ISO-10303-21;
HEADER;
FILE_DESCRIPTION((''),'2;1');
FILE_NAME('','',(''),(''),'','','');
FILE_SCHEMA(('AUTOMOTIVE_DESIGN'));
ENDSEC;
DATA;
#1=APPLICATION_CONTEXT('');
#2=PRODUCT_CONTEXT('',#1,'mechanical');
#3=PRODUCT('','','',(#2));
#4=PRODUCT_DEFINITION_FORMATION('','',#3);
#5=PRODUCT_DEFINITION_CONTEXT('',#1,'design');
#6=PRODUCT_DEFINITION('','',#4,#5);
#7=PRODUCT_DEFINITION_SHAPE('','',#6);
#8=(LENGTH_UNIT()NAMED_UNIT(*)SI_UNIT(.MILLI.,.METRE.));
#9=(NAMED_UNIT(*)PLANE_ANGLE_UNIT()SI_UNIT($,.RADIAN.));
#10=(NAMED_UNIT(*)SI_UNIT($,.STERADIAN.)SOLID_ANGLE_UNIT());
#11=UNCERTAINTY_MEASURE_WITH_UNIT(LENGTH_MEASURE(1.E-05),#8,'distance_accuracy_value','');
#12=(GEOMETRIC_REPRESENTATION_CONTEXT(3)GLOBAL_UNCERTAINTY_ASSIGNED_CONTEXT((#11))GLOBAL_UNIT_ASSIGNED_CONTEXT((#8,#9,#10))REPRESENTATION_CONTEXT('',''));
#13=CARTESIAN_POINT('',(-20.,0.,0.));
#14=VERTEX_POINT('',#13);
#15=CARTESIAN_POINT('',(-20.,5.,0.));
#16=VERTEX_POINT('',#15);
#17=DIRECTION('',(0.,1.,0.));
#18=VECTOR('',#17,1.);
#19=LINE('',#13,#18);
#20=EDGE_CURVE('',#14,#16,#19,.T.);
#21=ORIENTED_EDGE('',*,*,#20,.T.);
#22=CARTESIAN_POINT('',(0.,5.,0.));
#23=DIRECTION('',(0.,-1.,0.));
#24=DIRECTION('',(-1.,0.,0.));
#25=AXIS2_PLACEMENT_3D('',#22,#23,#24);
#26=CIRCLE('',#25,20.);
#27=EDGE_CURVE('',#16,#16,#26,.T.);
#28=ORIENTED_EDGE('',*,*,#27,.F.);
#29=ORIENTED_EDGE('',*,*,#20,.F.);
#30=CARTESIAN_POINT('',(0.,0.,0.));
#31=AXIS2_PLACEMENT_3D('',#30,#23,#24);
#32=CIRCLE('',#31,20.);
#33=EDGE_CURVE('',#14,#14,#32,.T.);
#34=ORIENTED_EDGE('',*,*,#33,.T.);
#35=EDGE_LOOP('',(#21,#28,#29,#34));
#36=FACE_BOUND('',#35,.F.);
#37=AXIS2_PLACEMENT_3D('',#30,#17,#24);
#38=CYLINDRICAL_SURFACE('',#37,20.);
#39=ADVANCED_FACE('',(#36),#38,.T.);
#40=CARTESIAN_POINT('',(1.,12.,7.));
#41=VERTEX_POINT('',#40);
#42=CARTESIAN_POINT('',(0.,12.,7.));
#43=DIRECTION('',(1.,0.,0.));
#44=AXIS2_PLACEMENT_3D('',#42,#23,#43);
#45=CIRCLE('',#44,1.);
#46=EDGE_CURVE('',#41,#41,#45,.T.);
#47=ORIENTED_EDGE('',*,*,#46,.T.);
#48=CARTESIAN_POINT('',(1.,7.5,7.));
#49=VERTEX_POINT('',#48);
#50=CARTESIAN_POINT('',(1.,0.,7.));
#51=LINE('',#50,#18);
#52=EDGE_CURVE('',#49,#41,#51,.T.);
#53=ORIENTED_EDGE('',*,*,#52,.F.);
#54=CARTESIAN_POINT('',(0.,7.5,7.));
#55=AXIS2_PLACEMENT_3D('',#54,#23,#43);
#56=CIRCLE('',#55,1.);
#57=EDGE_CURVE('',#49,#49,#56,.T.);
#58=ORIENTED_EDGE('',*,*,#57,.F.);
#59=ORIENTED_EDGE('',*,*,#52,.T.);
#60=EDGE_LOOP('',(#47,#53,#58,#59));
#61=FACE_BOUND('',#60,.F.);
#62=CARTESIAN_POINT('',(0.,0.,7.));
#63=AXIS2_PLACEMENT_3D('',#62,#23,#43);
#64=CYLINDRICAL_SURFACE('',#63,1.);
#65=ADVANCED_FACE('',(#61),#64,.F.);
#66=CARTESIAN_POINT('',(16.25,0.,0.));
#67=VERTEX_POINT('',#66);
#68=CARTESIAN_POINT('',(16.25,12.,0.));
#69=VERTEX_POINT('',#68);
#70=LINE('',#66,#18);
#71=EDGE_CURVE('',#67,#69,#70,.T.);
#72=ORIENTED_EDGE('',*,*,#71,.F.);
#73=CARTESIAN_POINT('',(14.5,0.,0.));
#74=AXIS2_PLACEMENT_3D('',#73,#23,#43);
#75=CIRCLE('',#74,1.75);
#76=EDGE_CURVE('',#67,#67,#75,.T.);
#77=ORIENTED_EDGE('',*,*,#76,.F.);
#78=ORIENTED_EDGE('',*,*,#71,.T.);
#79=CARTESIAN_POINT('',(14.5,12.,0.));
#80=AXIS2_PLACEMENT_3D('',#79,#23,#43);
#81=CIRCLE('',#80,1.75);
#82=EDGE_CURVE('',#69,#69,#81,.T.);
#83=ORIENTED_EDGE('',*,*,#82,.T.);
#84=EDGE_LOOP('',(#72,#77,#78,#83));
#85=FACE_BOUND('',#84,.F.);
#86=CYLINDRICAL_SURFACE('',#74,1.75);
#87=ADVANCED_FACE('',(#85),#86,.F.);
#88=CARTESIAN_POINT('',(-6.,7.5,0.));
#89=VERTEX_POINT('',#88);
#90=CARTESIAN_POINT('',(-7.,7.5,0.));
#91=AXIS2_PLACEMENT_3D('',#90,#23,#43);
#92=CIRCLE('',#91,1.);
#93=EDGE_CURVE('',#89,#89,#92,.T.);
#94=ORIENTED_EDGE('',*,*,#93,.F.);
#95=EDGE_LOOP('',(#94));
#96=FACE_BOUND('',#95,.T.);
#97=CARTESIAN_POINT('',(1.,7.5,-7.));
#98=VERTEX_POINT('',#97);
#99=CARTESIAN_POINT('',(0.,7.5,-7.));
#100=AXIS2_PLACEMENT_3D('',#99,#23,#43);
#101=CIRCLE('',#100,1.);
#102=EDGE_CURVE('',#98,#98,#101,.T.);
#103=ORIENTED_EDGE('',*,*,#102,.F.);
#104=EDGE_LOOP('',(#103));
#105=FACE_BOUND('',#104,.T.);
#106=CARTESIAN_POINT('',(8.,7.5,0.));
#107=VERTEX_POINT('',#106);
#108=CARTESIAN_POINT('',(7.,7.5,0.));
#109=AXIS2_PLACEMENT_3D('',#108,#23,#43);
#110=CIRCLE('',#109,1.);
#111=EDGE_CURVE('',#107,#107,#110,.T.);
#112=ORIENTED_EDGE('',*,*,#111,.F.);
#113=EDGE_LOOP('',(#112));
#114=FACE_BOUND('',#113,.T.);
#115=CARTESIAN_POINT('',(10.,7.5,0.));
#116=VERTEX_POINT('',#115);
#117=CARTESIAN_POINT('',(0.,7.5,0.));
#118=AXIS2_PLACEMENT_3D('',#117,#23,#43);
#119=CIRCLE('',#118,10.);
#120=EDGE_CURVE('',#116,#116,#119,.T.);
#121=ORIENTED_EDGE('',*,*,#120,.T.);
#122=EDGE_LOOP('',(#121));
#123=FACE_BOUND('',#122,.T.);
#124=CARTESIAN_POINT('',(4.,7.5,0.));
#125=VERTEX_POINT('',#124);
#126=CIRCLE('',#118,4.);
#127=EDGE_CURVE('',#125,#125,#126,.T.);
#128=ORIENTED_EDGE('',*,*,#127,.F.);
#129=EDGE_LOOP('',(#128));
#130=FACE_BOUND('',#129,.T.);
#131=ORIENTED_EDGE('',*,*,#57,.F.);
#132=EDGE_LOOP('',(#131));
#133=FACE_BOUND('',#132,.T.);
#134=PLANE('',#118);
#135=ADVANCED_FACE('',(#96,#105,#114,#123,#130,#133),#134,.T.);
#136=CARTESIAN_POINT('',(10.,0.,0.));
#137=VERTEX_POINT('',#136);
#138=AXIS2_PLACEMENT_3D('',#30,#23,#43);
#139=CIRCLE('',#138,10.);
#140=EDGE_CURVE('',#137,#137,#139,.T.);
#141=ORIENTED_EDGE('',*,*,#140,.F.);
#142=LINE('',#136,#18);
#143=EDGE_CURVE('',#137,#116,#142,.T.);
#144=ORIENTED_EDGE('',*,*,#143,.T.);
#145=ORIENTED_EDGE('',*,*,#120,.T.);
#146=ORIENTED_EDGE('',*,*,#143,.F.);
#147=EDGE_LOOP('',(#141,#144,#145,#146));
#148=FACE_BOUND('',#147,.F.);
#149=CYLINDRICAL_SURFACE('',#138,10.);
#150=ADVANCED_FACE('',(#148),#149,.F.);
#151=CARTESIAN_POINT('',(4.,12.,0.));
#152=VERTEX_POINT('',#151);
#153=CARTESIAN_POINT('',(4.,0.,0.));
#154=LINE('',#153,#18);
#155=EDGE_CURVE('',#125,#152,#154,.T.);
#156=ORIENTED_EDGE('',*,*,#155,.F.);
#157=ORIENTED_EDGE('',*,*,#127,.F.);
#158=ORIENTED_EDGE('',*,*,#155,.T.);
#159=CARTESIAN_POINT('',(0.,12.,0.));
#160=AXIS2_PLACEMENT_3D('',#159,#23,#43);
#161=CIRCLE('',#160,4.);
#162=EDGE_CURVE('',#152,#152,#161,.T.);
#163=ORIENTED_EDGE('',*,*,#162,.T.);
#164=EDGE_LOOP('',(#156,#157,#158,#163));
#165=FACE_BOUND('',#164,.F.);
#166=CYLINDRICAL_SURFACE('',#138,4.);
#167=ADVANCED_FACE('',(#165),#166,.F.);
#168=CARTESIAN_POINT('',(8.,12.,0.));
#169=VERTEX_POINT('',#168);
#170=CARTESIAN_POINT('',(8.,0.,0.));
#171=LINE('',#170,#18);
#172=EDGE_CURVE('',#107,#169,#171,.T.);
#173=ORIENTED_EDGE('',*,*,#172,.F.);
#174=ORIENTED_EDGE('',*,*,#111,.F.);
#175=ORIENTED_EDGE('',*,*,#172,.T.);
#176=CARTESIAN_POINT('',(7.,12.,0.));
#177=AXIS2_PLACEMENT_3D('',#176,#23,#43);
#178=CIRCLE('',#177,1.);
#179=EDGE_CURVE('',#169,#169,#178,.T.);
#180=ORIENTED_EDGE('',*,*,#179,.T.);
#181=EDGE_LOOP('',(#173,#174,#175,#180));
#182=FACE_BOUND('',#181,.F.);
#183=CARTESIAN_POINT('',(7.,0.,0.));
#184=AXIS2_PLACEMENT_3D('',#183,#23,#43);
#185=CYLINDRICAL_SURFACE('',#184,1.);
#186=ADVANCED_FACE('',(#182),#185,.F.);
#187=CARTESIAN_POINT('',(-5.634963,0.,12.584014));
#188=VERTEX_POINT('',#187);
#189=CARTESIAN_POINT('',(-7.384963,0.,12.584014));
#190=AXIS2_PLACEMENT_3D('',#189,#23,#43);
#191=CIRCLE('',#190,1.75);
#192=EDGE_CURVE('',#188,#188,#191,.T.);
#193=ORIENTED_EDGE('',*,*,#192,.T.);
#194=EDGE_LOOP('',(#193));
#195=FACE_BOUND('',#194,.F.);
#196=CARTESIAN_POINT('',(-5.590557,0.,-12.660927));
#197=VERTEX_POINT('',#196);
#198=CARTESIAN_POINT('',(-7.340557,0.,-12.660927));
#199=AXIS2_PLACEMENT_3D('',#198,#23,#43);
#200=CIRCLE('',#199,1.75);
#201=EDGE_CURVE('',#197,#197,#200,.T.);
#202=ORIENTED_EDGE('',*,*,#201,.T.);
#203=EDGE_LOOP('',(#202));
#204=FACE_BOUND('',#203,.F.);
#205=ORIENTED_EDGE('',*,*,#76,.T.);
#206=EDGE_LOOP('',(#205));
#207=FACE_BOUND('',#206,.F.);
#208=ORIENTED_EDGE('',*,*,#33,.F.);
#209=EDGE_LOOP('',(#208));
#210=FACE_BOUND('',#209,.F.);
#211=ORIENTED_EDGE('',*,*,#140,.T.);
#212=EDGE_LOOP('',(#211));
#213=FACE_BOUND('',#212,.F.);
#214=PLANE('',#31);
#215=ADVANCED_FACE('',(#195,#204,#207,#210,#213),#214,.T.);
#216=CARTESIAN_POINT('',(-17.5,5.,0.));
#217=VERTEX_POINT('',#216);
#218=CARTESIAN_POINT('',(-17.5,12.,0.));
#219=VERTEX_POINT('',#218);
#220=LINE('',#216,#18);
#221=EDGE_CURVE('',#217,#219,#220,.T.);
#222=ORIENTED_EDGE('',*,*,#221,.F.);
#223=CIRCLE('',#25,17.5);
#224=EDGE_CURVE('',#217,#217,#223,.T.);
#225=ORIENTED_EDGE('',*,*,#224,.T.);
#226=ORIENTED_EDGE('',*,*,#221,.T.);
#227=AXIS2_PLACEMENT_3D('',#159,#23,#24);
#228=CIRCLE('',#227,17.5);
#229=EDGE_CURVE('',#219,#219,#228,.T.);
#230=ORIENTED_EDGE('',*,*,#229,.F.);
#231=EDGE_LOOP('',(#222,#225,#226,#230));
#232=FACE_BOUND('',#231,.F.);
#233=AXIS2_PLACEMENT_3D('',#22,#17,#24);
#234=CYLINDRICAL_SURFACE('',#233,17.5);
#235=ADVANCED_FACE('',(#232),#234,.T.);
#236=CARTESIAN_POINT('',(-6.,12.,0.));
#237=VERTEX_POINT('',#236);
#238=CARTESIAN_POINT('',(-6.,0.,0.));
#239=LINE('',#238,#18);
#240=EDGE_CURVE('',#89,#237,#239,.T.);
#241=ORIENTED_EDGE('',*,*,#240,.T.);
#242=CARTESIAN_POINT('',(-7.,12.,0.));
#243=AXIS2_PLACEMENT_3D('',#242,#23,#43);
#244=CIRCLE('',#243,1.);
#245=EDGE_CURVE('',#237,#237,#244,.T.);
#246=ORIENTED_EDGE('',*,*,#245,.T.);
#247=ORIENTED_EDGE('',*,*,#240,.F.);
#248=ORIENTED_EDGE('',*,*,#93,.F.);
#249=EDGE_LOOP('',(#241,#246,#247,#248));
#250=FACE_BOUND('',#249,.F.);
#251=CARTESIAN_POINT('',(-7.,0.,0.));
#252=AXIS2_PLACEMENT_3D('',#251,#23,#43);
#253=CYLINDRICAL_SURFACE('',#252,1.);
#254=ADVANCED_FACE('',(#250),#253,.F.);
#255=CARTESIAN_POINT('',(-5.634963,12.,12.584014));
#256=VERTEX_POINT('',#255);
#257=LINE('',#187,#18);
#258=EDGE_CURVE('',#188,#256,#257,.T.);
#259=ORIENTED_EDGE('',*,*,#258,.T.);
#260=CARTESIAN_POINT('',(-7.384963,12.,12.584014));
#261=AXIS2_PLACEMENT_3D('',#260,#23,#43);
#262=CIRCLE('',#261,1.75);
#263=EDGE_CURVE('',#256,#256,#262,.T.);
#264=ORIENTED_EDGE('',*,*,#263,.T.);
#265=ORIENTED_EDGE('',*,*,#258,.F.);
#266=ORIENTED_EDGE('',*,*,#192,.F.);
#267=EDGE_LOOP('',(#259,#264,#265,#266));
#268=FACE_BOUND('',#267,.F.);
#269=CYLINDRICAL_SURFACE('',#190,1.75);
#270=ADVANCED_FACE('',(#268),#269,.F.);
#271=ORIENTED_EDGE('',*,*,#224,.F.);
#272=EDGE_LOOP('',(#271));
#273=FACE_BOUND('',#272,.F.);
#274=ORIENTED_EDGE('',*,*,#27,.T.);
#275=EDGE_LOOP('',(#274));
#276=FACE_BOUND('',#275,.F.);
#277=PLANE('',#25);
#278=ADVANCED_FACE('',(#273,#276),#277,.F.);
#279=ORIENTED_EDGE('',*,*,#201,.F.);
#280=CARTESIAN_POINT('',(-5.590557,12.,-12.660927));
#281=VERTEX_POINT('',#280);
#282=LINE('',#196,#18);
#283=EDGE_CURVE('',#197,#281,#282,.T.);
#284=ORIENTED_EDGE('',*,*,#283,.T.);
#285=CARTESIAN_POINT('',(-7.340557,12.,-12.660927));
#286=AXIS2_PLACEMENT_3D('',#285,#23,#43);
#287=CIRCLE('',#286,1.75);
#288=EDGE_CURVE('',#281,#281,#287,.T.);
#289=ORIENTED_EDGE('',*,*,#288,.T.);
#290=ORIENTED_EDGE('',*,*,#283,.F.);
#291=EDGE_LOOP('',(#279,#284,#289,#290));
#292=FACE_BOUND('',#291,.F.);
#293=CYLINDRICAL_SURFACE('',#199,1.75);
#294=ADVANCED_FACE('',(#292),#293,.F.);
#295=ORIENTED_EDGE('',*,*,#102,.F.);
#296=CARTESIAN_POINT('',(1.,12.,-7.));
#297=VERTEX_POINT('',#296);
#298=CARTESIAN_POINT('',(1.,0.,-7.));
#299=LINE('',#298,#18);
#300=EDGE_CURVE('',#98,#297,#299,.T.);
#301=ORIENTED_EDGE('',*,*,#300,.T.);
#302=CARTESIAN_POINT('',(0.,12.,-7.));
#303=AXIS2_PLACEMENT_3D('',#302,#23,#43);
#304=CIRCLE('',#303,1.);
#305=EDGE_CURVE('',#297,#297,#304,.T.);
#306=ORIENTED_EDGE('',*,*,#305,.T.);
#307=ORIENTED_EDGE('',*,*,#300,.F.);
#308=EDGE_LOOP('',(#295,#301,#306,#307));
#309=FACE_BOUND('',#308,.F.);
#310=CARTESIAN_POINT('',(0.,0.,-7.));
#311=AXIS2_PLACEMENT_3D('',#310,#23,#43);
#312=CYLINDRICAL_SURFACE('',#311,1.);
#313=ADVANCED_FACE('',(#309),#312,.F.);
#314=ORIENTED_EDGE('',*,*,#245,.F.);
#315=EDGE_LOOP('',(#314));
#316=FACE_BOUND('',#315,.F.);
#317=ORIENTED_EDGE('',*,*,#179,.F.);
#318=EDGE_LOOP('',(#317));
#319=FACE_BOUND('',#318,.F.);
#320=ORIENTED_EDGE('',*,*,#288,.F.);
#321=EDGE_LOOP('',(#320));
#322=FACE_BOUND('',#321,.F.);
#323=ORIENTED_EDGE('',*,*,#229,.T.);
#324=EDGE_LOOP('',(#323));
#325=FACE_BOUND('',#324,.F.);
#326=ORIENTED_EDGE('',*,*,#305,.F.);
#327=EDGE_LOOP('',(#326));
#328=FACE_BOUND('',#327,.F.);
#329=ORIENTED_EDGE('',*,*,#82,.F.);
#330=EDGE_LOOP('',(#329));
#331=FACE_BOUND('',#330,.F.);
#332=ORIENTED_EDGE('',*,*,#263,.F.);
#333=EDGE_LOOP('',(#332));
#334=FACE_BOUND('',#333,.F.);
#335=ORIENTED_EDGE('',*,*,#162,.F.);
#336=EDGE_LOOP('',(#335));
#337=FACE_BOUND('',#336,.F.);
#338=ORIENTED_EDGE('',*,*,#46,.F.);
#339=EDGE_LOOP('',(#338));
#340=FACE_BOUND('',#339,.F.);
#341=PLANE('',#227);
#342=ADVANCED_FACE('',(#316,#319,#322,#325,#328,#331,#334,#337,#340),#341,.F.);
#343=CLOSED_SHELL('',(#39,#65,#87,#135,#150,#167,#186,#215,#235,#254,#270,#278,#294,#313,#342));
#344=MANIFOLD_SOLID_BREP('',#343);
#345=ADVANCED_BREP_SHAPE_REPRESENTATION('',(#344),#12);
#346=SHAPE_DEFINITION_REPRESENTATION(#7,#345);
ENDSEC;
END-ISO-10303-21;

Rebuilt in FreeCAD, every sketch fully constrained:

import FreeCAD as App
import Part
import Sketcher

V = App.Vector

doc = App.newDocument("Part")
params = doc.addObject("Spreadsheet::Sheet", "Params")
for row, (alias, value) in enumerate([
    ("sketch1_width", "20 mm"),
    ("sketch1_height", "12 mm"),
    ("sketch1_height2", "7 mm"),
    ("sketch1_width2", "17.5 mm"),
    ("revolution_angle", "360 deg"),
    ("sketch2_diameter", "8 mm"),
    ("sketch2_diameter2", "2 mm"),
    ("sketch2_diameter3", "3.5 mm"),
    ("sketch3_diameter", "20 mm"),
    ("pocket2_length", "7.5 mm"),
], start=1):
    params.set(f"A{row}", alias)
    params.set(f"B{row}", "=" + value)
    params.setAlias(f"B{row}", alias)

body = doc.addObject("PartDesign::Body", "Body")

sketch1 = body.newObject("Sketcher::SketchObject", "Sketch")
sketch1.AttachmentSupport = (doc.getObject("XY_Plane"), [""])
sketch1.MapMode = "FlatFace"
sketch1.addGeometry(Part.LineSegment(V(0, 0, 0), V(0, 12, 0)), False)
sketch1.addGeometry(Part.LineSegment(V(0, 12, 0), V(-17.5, 12, 0)), False)
sketch1.addGeometry(Part.LineSegment(V(-17.5, 12, 0), V(-17.5, 5, 0)), False)
sketch1.addGeometry(Part.LineSegment(V(-17.5, 5, 0), V(-20, 5, 0)), False)
sketch1.addGeometry(Part.LineSegment(V(-20, 5, 0), V(-20, 0, 0)), False)
sketch1.addGeometry(Part.LineSegment(V(-20, 0, 0), V(0, 0, 0)), False)
sketch1.addConstraint(Sketcher.Constraint("Coincident", 0, 2, 1, 1))
sketch1.addConstraint(Sketcher.Constraint("Coincident", 1, 2, 2, 1))
sketch1.addConstraint(Sketcher.Constraint("Coincident", 2, 2, 3, 1))
sketch1.addConstraint(Sketcher.Constraint("Coincident", 3, 2, 4, 1))
sketch1.addConstraint(Sketcher.Constraint("Coincident", 4, 2, 5, 1))
sketch1.addConstraint(Sketcher.Constraint("Coincident", 5, 2, 0, 1))
sketch1.addConstraint(Sketcher.Constraint("Vertical", 0))
sketch1.addConstraint(Sketcher.Constraint("Horizontal", 1))
sketch1.addConstraint(Sketcher.Constraint("Vertical", 2))
sketch1.addConstraint(Sketcher.Constraint("Horizontal", 3))
sketch1.addConstraint(Sketcher.Constraint("Vertical", 4))
sketch1.addConstraint(Sketcher.Constraint("Horizontal", 5))
sketch1.addConstraint(Sketcher.Constraint("Coincident", 5, 2, -1, 1))
sketch1.addConstraint(Sketcher.Constraint("DistanceX", 5, 1, 5, 2, 20.0))
sketch1.addConstraint(Sketcher.Constraint("DistanceY", 0, 1, 0, 2, 12.0))
sketch1.addConstraint(Sketcher.Constraint("DistanceY", 2, 2, 2, 1, 7.0))
sketch1.addConstraint(Sketcher.Constraint("DistanceX", 1, 2, 1, 1, 17.5))
sketch1.setExpression("Constraints[13]", "Params.sketch1_width")
sketch1.setExpression("Constraints[14]", "Params.sketch1_height")
sketch1.setExpression("Constraints[15]", "Params.sketch1_height2")
sketch1.setExpression("Constraints[16]", "Params.sketch1_width2")
revolution = body.newObject("PartDesign::Revolution", "Revolution")
revolution.Profile = sketch1
revolution.ReferenceAxis = (sketch1, ["V_Axis"])
revolution.setExpression("Angle", "Params.revolution_angle")

sketch2 = body.newObject("Sketcher::SketchObject", "Sketch001")
sketch2.AttachmentSupport = (doc.getObject("XZ_Plane"), [""])
sketch2.MapMode = "FlatFace"
sketch2.addGeometry(Part.Circle(V(-7.3, -12.7, 0), V(0, 0, 1), 1.8), False)
sketch2.addGeometry(Part.Circle(V(14.5, 0, 0), V(0, 0, 1), 1.8), False)
sketch2.addGeometry(Part.Circle(V(-7.4, 12.6, 0), V(0, 0, 1), 1.8), False)
sketch2.addGeometry(Part.Circle(V(0, 0, 0), V(0, 0, 1), 4), False)
sketch2.addGeometry(Part.Circle(V(0, 7, 0), V(0, 0, 1), 1), False)
sketch2.addGeometry(Part.Circle(V(-7, 0, 0), V(0, 0, 1), 1), False)
sketch2.addGeometry(Part.Circle(V(7, 0, 0), V(0, 0, 1), 1), False)
sketch2.addGeometry(Part.Circle(V(0, -7, 0), V(0, 0, 1), 1), False)
sketch2.addConstraint(Sketcher.Constraint("Coincident", 3, 3, -1, 1))
sketch2.addConstraint(Sketcher.Constraint("Equal", 0, 1))
sketch2.addConstraint(Sketcher.Constraint("Equal", 1, 2))
sketch2.addConstraint(Sketcher.Constraint("Equal", 4, 5))
sketch2.addConstraint(Sketcher.Constraint("Equal", 5, 6))
sketch2.addConstraint(Sketcher.Constraint("Equal", 6, 7))
sketch2.addConstraint(Sketcher.Constraint("Symmetric", 5, 3, 6, 3, -1, 1))
sketch2.addConstraint(Sketcher.Constraint("Symmetric", 4, 3, 7, 3, -1, 1))
sketch2.addConstraint(Sketcher.Constraint("PointOnObject", 1, 3, -1))
sketch2.addConstraint(Sketcher.Constraint("PointOnObject", 4, 3, -2))
sketch2.addConstraint(Sketcher.Constraint("PointOnObject", 5, 3, -1))
sketch2.addConstraint(Sketcher.Constraint("Diameter", 3, 8.0))
sketch2.addConstraint(Sketcher.Constraint("Diameter", 4, 2.0))
sketch2.addConstraint(Sketcher.Constraint("Diameter", 0, 3.5))
sketch2.addConstraint(Sketcher.Constraint("DistanceY", -1, 1, 4, 3, 7.0))
sketch2.addConstraint(Sketcher.Constraint("DistanceX", 5, 3, -1, 1, 7.0))
sketch2.addConstraint(Sketcher.Constraint("DistanceX", -1, 1, 1, 3, 14.5))
sketch2.addConstraint(Sketcher.Constraint("DistanceY", 0, 3, 2, 3, 25.244941))
sketch2.addConstraint(Sketcher.Constraint("DistanceX", 0, 3, -1, 1, 7.340557))
sketch2.addConstraint(Sketcher.Constraint("DistanceY", 0, 3, -1, 1, 12.660927))
sketch2.addConstraint(Sketcher.Constraint("DistanceX", 2, 3, -1, 1, 7.384963))
sketch2.setExpression("Constraints[11]", "Params.sketch2_diameter")
sketch2.setExpression("Constraints[12]", "Params.sketch2_diameter2")
sketch2.setExpression("Constraints[13]", "Params.sketch2_diameter3")
pocket1 = body.newObject("PartDesign::Pocket", "Pocket")
pocket1.Profile = sketch2
pocket1.Type = "ThroughAll"

sketch3 = body.newObject("Sketcher::SketchObject", "Sketch002")
sketch3.AttachmentSupport = (doc.getObject("XZ_Plane"), [""])
sketch3.MapMode = "FlatFace"
sketch3.addGeometry(Part.Circle(V(0, 0, 0), V(0, 0, 1), 10), False)
sketch3.addConstraint(Sketcher.Constraint("Coincident", 0, 3, -1, 1))
sketch3.addConstraint(Sketcher.Constraint("Diameter", 0, 20.0))
sketch3.setExpression("Constraints[1]", "Params.sketch3_diameter")
pocket2 = body.newObject("PartDesign::Pocket", "Pocket001")
pocket2.Profile = sketch3
pocket2.setExpression("Length", "Params.pocket2_length")

doc.recompute()
